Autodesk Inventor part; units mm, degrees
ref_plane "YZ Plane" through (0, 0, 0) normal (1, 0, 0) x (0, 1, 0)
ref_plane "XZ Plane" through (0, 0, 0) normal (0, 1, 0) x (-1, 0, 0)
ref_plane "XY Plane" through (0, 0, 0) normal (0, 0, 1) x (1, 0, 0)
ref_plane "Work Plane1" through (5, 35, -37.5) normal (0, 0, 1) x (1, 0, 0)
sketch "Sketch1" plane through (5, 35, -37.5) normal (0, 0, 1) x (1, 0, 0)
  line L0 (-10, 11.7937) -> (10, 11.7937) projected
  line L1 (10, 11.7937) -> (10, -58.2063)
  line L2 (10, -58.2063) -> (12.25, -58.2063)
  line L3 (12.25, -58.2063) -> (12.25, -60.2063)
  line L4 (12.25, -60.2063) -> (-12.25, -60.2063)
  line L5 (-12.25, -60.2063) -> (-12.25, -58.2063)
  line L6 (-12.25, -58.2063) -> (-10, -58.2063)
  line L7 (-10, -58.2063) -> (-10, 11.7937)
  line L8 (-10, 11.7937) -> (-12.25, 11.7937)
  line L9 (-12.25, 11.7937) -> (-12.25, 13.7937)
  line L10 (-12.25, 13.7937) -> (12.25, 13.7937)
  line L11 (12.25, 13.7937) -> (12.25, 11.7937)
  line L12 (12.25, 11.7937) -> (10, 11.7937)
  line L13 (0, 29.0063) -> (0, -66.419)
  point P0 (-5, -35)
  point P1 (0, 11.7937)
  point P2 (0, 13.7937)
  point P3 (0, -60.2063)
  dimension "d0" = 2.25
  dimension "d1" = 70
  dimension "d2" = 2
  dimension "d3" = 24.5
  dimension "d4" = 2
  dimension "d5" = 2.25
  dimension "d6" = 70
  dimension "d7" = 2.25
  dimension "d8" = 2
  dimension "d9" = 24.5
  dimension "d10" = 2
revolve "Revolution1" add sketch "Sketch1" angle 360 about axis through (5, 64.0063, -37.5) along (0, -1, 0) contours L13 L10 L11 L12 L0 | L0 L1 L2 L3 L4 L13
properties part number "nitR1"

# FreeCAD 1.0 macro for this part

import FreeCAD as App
import Part
import Sketcher
Q = App.Units.Quantity

doc = App.newDocument("Part")
body = doc.addObject("PartDesign::Body", "Body")

sketch1 = body.newObject("Sketcher::SketchObject", "Sketch")
sketch1.AttachmentSupport = (doc.getObject("XY_Plane"), [""])
sketch1.MapMode = "FlatFace"
sketch1.AttachmentOffset = App.Placement(App.Vector(0, 0, -37.5), App.Rotation())
sketch1.addGeometry([
    Part.LineSegment(App.Vector(5, 48.8, 0), App.Vector(5, -25.2, 0)),
    Part.LineSegment(App.Vector(5, -25.2, 0), App.Vector(17.2, -25.2, 0)),
    Part.LineSegment(App.Vector(17.2, -25.2, 0), App.Vector(17.2, -23.2, 0)),
    Part.LineSegment(App.Vector(17.2, -23.2, 0), App.Vector(15, -23.2, 0)),
    Part.LineSegment(App.Vector(15, -23.2, 0), App.Vector(15, 46.8, 0)),
    Part.LineSegment(App.Vector(15, 46.8, 0), App.Vector(17.2, 46.8, 0)),
    Part.LineSegment(App.Vector(17.2, 46.8, 0), App.Vector(17.2, 48.8, 0)),
    Part.LineSegment(App.Vector(17.2, 48.8, 0), App.Vector(5, 48.8, 0)),
], False)
sketch1.addGeometry(Part.LineSegment(App.Vector(5, 48.8, 0), App.Vector(5, -25.2, 0)), True)
sketch1.addConstraint([
    Sketcher.Constraint("Coincident", 0, 2, 1, 1),
    Sketcher.Constraint("Coincident", 1, 2, 2, 1),
    Sketcher.Constraint("Coincident", 2, 2, 3, 1),
    Sketcher.Constraint("Coincident", 3, 2, 4, 1),
    Sketcher.Constraint("Coincident", 4, 2, 5, 1),
    Sketcher.Constraint("Coincident", 5, 2, 6, 1),
    Sketcher.Constraint("Coincident", 6, 2, 7, 1),
    Sketcher.Constraint("Coincident", 7, 2, 0, 1),
    Sketcher.Constraint("Vertical", 0),
    Sketcher.Constraint("Horizontal", 1),
    Sketcher.Constraint("Vertical", 2),
    Sketcher.Constraint("Horizontal", 3),
    Sketcher.Constraint("Vertical", 4),
    Sketcher.Constraint("Horizontal", 5),
    Sketcher.Constraint("Vertical", 6),
    Sketcher.Constraint("Horizontal", 7),
    Sketcher.Constraint("Vertical", 8),
    Sketcher.Constraint("Coincident", 8, 1, 7, 2),
    Sketcher.Constraint("Horizontal", 1, 2, 8, 2),
    Sketcher.Constraint("Vertical", 2, 2, 5, 2),
    Sketcher.Constraint("Equal", 2, 6),
    Sketcher.Constraint("DistanceY", 2, 1, 2, 2, Q("2 mm")),
    Sketcher.Constraint("DistanceY", 4, 1, 4, 2, Q("70 mm")),
    Sketcher.Constraint("DistanceX", 3, 2, 3, 1, Q("2.25 mm")),
    Sketcher.Constraint("DistanceX", -1, 1, 0, 2, Q("5 mm")),
    Sketcher.Constraint("DistanceX", -1, 1, 3, 2, Q("15 mm")),
    Sketcher.Constraint("DistanceY", 0, 2, -1, 1, Q("25.2063 mm")),
])
revolution = body.newObject("PartDesign::Revolution", "Revolution")
revolution.Profile = sketch1
revolution.ReferenceAxis = (sketch1, ["Axis0"])
revolution.Angle = 360

doc.recompute()
